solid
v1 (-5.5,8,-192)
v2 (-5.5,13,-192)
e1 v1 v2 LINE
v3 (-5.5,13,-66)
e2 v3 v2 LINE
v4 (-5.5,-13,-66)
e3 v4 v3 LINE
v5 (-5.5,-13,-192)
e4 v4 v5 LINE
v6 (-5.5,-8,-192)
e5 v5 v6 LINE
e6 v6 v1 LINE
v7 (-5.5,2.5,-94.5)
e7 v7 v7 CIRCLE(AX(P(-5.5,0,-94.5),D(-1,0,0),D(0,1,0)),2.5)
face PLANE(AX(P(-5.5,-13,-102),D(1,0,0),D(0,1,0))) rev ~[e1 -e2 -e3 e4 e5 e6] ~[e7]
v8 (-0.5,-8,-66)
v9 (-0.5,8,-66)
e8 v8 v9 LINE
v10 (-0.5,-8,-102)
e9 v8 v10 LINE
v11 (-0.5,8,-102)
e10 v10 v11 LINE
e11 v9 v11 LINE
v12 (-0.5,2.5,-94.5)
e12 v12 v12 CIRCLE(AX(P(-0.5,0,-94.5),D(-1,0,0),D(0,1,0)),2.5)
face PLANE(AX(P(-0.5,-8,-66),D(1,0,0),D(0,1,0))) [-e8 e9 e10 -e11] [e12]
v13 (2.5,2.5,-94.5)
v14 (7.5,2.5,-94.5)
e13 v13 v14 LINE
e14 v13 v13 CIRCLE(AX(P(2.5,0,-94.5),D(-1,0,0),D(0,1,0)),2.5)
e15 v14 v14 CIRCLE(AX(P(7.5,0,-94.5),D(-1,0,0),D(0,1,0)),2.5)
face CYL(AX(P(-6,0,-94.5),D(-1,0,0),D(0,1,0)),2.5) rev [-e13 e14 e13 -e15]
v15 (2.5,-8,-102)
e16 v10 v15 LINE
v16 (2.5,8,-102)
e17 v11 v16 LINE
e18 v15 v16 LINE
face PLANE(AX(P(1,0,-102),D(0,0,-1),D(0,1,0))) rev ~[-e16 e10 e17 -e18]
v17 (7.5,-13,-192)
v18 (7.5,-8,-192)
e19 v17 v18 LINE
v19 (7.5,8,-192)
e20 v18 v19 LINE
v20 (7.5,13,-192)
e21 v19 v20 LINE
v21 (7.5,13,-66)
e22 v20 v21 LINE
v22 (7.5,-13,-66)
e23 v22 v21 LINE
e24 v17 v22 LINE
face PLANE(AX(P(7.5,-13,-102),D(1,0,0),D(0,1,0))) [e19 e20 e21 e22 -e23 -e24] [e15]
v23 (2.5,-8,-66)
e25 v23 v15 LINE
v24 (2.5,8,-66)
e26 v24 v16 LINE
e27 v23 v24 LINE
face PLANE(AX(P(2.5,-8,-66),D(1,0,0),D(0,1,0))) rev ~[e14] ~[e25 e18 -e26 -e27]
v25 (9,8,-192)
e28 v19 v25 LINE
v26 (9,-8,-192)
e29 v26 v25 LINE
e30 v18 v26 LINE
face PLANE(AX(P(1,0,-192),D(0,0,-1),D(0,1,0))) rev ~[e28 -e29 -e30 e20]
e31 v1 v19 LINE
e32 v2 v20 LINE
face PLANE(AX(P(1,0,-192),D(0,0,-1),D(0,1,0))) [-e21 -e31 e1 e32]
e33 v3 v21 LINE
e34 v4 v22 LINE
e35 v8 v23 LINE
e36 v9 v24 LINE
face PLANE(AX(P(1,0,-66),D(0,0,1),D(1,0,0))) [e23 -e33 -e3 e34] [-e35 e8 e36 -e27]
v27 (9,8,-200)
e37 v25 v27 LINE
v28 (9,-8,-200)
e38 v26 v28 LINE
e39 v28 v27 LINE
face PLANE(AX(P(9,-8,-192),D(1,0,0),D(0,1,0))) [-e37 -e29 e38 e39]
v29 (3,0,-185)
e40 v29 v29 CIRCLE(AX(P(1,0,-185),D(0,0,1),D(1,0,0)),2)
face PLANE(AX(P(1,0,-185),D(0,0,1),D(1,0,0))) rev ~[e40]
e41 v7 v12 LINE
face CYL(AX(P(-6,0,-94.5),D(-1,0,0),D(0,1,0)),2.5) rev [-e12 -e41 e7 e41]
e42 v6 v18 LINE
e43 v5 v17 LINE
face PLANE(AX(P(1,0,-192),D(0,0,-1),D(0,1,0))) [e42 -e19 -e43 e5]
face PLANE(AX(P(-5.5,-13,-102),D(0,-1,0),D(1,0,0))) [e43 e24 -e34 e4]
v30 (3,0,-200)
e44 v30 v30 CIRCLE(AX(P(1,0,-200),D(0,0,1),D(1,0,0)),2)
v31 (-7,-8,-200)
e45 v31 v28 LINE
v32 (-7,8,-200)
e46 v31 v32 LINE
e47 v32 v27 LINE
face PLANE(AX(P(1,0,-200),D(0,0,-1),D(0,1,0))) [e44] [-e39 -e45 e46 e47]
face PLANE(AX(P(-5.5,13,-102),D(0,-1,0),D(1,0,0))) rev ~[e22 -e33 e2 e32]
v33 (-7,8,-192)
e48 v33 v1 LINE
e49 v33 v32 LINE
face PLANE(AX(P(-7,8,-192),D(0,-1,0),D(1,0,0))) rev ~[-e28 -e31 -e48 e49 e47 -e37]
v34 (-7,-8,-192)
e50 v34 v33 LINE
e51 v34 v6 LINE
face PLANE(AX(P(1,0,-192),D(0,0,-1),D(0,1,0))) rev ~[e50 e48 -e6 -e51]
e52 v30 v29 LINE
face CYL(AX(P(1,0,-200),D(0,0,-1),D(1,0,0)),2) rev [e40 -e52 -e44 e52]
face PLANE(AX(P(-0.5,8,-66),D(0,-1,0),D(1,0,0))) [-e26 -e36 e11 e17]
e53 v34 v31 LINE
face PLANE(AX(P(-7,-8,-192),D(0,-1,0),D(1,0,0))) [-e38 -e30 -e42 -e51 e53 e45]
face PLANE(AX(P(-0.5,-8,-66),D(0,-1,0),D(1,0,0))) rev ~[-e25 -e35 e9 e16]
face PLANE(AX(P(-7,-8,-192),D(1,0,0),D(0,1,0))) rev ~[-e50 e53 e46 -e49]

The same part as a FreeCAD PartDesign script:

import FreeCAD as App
import Part
import Sketcher
Q = App.Units.Quantity

doc = App.newDocument("Part")
params = doc.addObject("Spreadsheet::Sheet", "Params")
for row, (alias, value) in enumerate([
    ("sketch1_width", "13 mm"),
    ("sketch1_width2", "3 mm"),
    ("sketch1_height", "26 mm"),
    ("sketch1_height2", "16 mm"),
    ("pad1_length", "36 mm"),
    ("sketch2_diameter", "5 mm"),
    ("pocket1_length", "14 mm"),
    ("sketch3_width", "13 mm"),
    ("sketch3_height", "26 mm"),
    ("pad2_length", "90 mm"),
    ("sketch4_width", "16 mm"),
    ("pad3_length", "8 mm"),
    ("sketch5_diameter", "4 mm"),
    ("pocket2_length", "15 mm"),
], start=1):
    params.set(f"A{row}", alias)
    params.set(f"B{row}", "=" + value)
    params.setAlias(f"B{row}", alias)

body = doc.addObject("PartDesign::Body", "Body")

# Sketch on XY plane
sketch1 = body.newObject("Sketcher::SketchObject", "Sketch")
sketch1.AttachmentSupport = (doc.getObject("XY_Plane"), [""])
sketch1.MapMode = "FlatFace"
sketch1.addGeometry([
    Part.LineSegment(App.Vector(-5.5, 13, 0), App.Vector(-5.5, -13, 0)),  # 0
    Part.LineSegment(App.Vector(-5.5, -13, 0), App.Vector(7.5, -13, 0)),  # 1
    Part.LineSegment(App.Vector(7.5, -13, 0), App.Vector(7.5, 13, 0)),  # 2
    Part.LineSegment(App.Vector(7.5, 13, 0), App.Vector(-5.5, 13, 0)),  # 3
    Part.LineSegment(App.Vector(2.5, -8, 0), App.Vector(-0.5, -8, 0)),  # 4
    Part.LineSegment(App.Vector(-0.5, -8, 0), App.Vector(-0.5, 8, 0)),  # 5
    Part.LineSegment(App.Vector(-0.5, 8, 0), App.Vector(2.5, 8, 0)),  # 6
    Part.LineSegment(App.Vector(2.5, 8, 0), App.Vector(2.5, -8, 0)),  # 7
], False)
sketch1.addConstraint([
    Sketcher.Constraint("Coincident", 0, 2, 1, 1),
    Sketcher.Constraint("Coincident", 1, 2, 2, 1),
    Sketcher.Constraint("Coincident", 2, 2, 3, 1),
    Sketcher.Constraint("Coincident", 3, 2, 0, 1),
    Sketcher.Constraint("Coincident", 4, 2, 5, 1),
    Sketcher.Constraint("Coincident", 5, 2, 6, 1),
    Sketcher.Constraint("Coincident", 6, 2, 7, 1),
    Sketcher.Constraint("Coincident", 7, 2, 4, 1),
    Sketcher.Constraint("Vertical", 0),
    Sketcher.Constraint("Horizontal", 1),
    Sketcher.Constraint("Vertical", 2),
    Sketcher.Constraint("Horizontal", 3),
    Sketcher.Constraint("Horizontal", 4),
    Sketcher.Constraint("Vertical", 5),
    Sketcher.Constraint("Horizontal", 6),
    Sketcher.Constraint("Vertical", 7),
    Sketcher.Constraint("DistanceX", 1, 1, 1, 2, Q("13 mm")),
    Sketcher.Constraint("DistanceX", 4, 2, 4, 1, Q("3 mm")),
    Sketcher.Constraint("DistanceY", 0, 2, 0, 1, Q("26 mm")),
    Sketcher.Constraint("DistanceY", 5, 1, 5, 2, Q("16 mm")),
    Sketcher.Constraint("DistanceY", 0, 2, -1, 1, Q("13 mm")),
    Sketcher.Constraint("DistanceY", 4, 2, -1, 1, Q("8 mm")),
    Sketcher.Constraint("DistanceX", 0, 2, 4, 2, Q("5 mm")),
    Sketcher.Constraint("DistanceX", 0, 2, -1, 1, Q("5.5 mm")),
])
sketch1.setExpression("Constraints[16]", "Params.sketch1_width")
sketch1.setExpression("Constraints[17]", "Params.sketch1_width2")
sketch1.setExpression("Constraints[18]", "Params.sketch1_height")
sketch1.setExpression("Constraints[19]", "Params.sketch1_height2")
pad1 = body.newObject("PartDesign::Pad", "Pad")
pad1.Profile = sketch1
pad1.setExpression("Length", "Params.pad1_length")
pad1.Reversed = True

# Sketch on YZ plane
sketch2 = body.newObject("Sketcher::SketchObject", "Sketch001")
sketch2.AttachmentSupport = (doc.getObject("YZ_Plane"), [""])
sketch2.MapMode = "FlatFace"
sketch2.AttachmentOffset = App.Placement(App.Vector(0, 0, -6), App.Rotation())
sketch2.addGeometry(Part.Circle(App.Vector(0, -28.5, 0), App.Vector(0, 0, 1), 2.5), False)
sketch2.addConstraint([
    Sketcher.Constraint("PointOnObject", 0, 3, -2),
    Sketcher.Constraint("Diameter", 0, Q("5 mm")),
    Sketcher.Constraint("DistanceY", 0, 3, -1, 1, Q("28.5 mm")),
])
sketch2.setExpression("Constraints[1]", "Params.sketch2_diameter")
pocket1 = body.newObject("PartDesign::Pocket", "Pocket")
pocket1.Profile = sketch2
pocket1.setExpression("Length", "Params.pocket1_length")
pocket1.Reversed = True

# Sketch on XY plane
sketch3 = body.newObject("Sketcher::SketchObject", "Sketch002")
sketch3.AttachmentSupport = (doc.getObject("XY_Plane"), [""])
sketch3.MapMode = "FlatFace"
sketch3.AttachmentOffset = App.Placement(App.Vector(0, 0, -36), App.Rotation())
sketch3.addGeometry([
    Part.LineSegment(App.Vector(8, -13, 0), App.Vector(-6, -13, 0)),
    Part.LineSegment(App.Vector(-6, -13, 0), App.Vector(-6, 13, 0)),
    Part.LineSegment(App.Vector(-6, 13, 0), App.Vector(8, 13, 0)),
    Part.LineSegment(App.Vector(8, 13, 0), App.Vector(8, -13, 0)),
], False)
sketch3.addConstraint([
    Sketcher.Constraint("Coincident", 0, 2, 1, 1),
    Sketcher.Constraint("Coincident", 1, 2, 2, 1),
    Sketcher.Constraint("Coincident", 2, 2, 3, 1),
    Sketcher.Constraint("Coincident", 3, 2, 0, 1),
    Sketcher.Constraint("Horizontal", 0),
    Sketcher.Constraint("Vertical", 1),
    Sketcher.Constraint("Horizontal", 2),
    Sketcher.Constraint("Vertical", 3),
    Sketcher.Constraint("DistanceX", 0, 2, 0, 1, Q("13 mm")),
    Sketcher.Constraint("DistanceY", 1, 1, 1, 2, Q("26 mm")),
    Sketcher.Constraint("DistanceY", 0, 2, -1, 1, Q("13 mm")),
    Sketcher.Constraint("DistanceX", 0, 2, -1, 1, Q("5.5 mm")),
])
sketch3.setExpression("Constraints[8]", "Params.sketch3_width")
sketch3.setExpression("Constraints[9]", "Params.sketch3_height")
pad2 = body.newObject("PartDesign::Pad", "Pad001")
pad2.Profile = sketch3
pad2.setExpression("Length", "Params.pad2_length")
pad2.Reversed = True

# Sketch on XY plane
sketch4 = body.newObject("Sketcher::SketchObject", "Sketch003")
sketch4.AttachmentSupport = (doc.getObject("XY_Plane"), [""])
sketch4.MapMode = "FlatFace"
sketch4.AttachmentOffset = App.Placement(App.Vector(0, 0, -126), App.Rotation())
sketch4.addGeometry([
    Part.LineSegment(App.Vector(9, -8, 0), App.Vector(-7, -8, 0)),
    Part.LineSegment(App.Vector(-7, -8, 0), App.Vector(-7, 8, 0)),
    Part.LineSegment(App.Vector(-7, 8, 0), App.Vector(9, 8, 0)),
    Part.LineSegment(App.Vector(9, 8, 0), App.Vector(9, -8, 0)),
], False)
sketch4.addConstraint([
    Sketcher.Constraint("Coincident", 0, 2, 1, 1),
    Sketcher.Constraint("Coincident", 1, 2, 2, 1),
    Sketcher.Constraint("Coincident", 2, 2, 3, 1),
    Sketcher.Constraint("Coincident", 3, 2, 0, 1),
    Sketcher.Constraint("Horizontal", 0),
    Sketcher.Constraint("Vertical", 1),
    Sketcher.Constraint("Horizontal", 2),
    Sketcher.Constraint("Vertical", 3),
    Sketcher.Constraint("Equal", 2, 1),
    Sketcher.Constraint("DistanceX", 0, 2, 0, 1, Q("16 mm")),
    Sketcher.Constraint("DistanceX", 0, 2, -1, 1, Q("7 mm")),
    Sketcher.Constraint("DistanceY", 0, 2, -1, 1, Q("8 mm")),
])
sketch4.setExpression("Constraints[9]", "Params.sketch4_width")
pad3 = body.newObject("PartDesign::Pad", "Pad002")
pad3.Profile = sketch4
pad3.setExpression("Length", "Params.pad3_length")
pad3.Reversed = True

# Sketch on XY plane
sketch5 = body.newObject("Sketcher::SketchObject", "Sketch004")
sketch5.AttachmentSupport = (doc.getObject("XY_Plane"), [""])
sketch5.MapMode = "FlatFace"
sketch5.AttachmentOffset = App.Placement(App.Vector(0, 0, -134), App.Rotation())
sketch5.addGeometry(Part.Circle(App.Vector(1, 0, 0), App.Vector(0, 0, 1), 2), False)
sketch5.addConstraint([
    Sketcher.Constraint("PointOnObject", 0, 3, -1),
    Sketcher.Constraint("Diameter", 0, Q("4 mm")),
    Sketcher.Constraint("DistanceX", -1, 1, 0, 3, Q("1 mm")),
])
sketch5.setExpression("Constraints[1]", "Params.sketch5_diameter")
pocket2 = body.newObject("PartDesign::Pocket", "Pocket001")
pocket2.Profile = sketch5
pocket2.setExpression("Length", "Params.pocket2_length")
pocket2.Reversed = True
body2 = doc.addObject("PartDesign::Body", "Body001")
doc.recompute()

body.Placement = App.Placement(App.Vector(0, 0, -66), App.Rotation(App.Vector(0, 0, 1), 0))
boolean = body2.newObject("PartDesign::Boolean", "Boolean")
boolean.Type = "Fuse"
boolean.addObjects([body])

doc.recompute()
